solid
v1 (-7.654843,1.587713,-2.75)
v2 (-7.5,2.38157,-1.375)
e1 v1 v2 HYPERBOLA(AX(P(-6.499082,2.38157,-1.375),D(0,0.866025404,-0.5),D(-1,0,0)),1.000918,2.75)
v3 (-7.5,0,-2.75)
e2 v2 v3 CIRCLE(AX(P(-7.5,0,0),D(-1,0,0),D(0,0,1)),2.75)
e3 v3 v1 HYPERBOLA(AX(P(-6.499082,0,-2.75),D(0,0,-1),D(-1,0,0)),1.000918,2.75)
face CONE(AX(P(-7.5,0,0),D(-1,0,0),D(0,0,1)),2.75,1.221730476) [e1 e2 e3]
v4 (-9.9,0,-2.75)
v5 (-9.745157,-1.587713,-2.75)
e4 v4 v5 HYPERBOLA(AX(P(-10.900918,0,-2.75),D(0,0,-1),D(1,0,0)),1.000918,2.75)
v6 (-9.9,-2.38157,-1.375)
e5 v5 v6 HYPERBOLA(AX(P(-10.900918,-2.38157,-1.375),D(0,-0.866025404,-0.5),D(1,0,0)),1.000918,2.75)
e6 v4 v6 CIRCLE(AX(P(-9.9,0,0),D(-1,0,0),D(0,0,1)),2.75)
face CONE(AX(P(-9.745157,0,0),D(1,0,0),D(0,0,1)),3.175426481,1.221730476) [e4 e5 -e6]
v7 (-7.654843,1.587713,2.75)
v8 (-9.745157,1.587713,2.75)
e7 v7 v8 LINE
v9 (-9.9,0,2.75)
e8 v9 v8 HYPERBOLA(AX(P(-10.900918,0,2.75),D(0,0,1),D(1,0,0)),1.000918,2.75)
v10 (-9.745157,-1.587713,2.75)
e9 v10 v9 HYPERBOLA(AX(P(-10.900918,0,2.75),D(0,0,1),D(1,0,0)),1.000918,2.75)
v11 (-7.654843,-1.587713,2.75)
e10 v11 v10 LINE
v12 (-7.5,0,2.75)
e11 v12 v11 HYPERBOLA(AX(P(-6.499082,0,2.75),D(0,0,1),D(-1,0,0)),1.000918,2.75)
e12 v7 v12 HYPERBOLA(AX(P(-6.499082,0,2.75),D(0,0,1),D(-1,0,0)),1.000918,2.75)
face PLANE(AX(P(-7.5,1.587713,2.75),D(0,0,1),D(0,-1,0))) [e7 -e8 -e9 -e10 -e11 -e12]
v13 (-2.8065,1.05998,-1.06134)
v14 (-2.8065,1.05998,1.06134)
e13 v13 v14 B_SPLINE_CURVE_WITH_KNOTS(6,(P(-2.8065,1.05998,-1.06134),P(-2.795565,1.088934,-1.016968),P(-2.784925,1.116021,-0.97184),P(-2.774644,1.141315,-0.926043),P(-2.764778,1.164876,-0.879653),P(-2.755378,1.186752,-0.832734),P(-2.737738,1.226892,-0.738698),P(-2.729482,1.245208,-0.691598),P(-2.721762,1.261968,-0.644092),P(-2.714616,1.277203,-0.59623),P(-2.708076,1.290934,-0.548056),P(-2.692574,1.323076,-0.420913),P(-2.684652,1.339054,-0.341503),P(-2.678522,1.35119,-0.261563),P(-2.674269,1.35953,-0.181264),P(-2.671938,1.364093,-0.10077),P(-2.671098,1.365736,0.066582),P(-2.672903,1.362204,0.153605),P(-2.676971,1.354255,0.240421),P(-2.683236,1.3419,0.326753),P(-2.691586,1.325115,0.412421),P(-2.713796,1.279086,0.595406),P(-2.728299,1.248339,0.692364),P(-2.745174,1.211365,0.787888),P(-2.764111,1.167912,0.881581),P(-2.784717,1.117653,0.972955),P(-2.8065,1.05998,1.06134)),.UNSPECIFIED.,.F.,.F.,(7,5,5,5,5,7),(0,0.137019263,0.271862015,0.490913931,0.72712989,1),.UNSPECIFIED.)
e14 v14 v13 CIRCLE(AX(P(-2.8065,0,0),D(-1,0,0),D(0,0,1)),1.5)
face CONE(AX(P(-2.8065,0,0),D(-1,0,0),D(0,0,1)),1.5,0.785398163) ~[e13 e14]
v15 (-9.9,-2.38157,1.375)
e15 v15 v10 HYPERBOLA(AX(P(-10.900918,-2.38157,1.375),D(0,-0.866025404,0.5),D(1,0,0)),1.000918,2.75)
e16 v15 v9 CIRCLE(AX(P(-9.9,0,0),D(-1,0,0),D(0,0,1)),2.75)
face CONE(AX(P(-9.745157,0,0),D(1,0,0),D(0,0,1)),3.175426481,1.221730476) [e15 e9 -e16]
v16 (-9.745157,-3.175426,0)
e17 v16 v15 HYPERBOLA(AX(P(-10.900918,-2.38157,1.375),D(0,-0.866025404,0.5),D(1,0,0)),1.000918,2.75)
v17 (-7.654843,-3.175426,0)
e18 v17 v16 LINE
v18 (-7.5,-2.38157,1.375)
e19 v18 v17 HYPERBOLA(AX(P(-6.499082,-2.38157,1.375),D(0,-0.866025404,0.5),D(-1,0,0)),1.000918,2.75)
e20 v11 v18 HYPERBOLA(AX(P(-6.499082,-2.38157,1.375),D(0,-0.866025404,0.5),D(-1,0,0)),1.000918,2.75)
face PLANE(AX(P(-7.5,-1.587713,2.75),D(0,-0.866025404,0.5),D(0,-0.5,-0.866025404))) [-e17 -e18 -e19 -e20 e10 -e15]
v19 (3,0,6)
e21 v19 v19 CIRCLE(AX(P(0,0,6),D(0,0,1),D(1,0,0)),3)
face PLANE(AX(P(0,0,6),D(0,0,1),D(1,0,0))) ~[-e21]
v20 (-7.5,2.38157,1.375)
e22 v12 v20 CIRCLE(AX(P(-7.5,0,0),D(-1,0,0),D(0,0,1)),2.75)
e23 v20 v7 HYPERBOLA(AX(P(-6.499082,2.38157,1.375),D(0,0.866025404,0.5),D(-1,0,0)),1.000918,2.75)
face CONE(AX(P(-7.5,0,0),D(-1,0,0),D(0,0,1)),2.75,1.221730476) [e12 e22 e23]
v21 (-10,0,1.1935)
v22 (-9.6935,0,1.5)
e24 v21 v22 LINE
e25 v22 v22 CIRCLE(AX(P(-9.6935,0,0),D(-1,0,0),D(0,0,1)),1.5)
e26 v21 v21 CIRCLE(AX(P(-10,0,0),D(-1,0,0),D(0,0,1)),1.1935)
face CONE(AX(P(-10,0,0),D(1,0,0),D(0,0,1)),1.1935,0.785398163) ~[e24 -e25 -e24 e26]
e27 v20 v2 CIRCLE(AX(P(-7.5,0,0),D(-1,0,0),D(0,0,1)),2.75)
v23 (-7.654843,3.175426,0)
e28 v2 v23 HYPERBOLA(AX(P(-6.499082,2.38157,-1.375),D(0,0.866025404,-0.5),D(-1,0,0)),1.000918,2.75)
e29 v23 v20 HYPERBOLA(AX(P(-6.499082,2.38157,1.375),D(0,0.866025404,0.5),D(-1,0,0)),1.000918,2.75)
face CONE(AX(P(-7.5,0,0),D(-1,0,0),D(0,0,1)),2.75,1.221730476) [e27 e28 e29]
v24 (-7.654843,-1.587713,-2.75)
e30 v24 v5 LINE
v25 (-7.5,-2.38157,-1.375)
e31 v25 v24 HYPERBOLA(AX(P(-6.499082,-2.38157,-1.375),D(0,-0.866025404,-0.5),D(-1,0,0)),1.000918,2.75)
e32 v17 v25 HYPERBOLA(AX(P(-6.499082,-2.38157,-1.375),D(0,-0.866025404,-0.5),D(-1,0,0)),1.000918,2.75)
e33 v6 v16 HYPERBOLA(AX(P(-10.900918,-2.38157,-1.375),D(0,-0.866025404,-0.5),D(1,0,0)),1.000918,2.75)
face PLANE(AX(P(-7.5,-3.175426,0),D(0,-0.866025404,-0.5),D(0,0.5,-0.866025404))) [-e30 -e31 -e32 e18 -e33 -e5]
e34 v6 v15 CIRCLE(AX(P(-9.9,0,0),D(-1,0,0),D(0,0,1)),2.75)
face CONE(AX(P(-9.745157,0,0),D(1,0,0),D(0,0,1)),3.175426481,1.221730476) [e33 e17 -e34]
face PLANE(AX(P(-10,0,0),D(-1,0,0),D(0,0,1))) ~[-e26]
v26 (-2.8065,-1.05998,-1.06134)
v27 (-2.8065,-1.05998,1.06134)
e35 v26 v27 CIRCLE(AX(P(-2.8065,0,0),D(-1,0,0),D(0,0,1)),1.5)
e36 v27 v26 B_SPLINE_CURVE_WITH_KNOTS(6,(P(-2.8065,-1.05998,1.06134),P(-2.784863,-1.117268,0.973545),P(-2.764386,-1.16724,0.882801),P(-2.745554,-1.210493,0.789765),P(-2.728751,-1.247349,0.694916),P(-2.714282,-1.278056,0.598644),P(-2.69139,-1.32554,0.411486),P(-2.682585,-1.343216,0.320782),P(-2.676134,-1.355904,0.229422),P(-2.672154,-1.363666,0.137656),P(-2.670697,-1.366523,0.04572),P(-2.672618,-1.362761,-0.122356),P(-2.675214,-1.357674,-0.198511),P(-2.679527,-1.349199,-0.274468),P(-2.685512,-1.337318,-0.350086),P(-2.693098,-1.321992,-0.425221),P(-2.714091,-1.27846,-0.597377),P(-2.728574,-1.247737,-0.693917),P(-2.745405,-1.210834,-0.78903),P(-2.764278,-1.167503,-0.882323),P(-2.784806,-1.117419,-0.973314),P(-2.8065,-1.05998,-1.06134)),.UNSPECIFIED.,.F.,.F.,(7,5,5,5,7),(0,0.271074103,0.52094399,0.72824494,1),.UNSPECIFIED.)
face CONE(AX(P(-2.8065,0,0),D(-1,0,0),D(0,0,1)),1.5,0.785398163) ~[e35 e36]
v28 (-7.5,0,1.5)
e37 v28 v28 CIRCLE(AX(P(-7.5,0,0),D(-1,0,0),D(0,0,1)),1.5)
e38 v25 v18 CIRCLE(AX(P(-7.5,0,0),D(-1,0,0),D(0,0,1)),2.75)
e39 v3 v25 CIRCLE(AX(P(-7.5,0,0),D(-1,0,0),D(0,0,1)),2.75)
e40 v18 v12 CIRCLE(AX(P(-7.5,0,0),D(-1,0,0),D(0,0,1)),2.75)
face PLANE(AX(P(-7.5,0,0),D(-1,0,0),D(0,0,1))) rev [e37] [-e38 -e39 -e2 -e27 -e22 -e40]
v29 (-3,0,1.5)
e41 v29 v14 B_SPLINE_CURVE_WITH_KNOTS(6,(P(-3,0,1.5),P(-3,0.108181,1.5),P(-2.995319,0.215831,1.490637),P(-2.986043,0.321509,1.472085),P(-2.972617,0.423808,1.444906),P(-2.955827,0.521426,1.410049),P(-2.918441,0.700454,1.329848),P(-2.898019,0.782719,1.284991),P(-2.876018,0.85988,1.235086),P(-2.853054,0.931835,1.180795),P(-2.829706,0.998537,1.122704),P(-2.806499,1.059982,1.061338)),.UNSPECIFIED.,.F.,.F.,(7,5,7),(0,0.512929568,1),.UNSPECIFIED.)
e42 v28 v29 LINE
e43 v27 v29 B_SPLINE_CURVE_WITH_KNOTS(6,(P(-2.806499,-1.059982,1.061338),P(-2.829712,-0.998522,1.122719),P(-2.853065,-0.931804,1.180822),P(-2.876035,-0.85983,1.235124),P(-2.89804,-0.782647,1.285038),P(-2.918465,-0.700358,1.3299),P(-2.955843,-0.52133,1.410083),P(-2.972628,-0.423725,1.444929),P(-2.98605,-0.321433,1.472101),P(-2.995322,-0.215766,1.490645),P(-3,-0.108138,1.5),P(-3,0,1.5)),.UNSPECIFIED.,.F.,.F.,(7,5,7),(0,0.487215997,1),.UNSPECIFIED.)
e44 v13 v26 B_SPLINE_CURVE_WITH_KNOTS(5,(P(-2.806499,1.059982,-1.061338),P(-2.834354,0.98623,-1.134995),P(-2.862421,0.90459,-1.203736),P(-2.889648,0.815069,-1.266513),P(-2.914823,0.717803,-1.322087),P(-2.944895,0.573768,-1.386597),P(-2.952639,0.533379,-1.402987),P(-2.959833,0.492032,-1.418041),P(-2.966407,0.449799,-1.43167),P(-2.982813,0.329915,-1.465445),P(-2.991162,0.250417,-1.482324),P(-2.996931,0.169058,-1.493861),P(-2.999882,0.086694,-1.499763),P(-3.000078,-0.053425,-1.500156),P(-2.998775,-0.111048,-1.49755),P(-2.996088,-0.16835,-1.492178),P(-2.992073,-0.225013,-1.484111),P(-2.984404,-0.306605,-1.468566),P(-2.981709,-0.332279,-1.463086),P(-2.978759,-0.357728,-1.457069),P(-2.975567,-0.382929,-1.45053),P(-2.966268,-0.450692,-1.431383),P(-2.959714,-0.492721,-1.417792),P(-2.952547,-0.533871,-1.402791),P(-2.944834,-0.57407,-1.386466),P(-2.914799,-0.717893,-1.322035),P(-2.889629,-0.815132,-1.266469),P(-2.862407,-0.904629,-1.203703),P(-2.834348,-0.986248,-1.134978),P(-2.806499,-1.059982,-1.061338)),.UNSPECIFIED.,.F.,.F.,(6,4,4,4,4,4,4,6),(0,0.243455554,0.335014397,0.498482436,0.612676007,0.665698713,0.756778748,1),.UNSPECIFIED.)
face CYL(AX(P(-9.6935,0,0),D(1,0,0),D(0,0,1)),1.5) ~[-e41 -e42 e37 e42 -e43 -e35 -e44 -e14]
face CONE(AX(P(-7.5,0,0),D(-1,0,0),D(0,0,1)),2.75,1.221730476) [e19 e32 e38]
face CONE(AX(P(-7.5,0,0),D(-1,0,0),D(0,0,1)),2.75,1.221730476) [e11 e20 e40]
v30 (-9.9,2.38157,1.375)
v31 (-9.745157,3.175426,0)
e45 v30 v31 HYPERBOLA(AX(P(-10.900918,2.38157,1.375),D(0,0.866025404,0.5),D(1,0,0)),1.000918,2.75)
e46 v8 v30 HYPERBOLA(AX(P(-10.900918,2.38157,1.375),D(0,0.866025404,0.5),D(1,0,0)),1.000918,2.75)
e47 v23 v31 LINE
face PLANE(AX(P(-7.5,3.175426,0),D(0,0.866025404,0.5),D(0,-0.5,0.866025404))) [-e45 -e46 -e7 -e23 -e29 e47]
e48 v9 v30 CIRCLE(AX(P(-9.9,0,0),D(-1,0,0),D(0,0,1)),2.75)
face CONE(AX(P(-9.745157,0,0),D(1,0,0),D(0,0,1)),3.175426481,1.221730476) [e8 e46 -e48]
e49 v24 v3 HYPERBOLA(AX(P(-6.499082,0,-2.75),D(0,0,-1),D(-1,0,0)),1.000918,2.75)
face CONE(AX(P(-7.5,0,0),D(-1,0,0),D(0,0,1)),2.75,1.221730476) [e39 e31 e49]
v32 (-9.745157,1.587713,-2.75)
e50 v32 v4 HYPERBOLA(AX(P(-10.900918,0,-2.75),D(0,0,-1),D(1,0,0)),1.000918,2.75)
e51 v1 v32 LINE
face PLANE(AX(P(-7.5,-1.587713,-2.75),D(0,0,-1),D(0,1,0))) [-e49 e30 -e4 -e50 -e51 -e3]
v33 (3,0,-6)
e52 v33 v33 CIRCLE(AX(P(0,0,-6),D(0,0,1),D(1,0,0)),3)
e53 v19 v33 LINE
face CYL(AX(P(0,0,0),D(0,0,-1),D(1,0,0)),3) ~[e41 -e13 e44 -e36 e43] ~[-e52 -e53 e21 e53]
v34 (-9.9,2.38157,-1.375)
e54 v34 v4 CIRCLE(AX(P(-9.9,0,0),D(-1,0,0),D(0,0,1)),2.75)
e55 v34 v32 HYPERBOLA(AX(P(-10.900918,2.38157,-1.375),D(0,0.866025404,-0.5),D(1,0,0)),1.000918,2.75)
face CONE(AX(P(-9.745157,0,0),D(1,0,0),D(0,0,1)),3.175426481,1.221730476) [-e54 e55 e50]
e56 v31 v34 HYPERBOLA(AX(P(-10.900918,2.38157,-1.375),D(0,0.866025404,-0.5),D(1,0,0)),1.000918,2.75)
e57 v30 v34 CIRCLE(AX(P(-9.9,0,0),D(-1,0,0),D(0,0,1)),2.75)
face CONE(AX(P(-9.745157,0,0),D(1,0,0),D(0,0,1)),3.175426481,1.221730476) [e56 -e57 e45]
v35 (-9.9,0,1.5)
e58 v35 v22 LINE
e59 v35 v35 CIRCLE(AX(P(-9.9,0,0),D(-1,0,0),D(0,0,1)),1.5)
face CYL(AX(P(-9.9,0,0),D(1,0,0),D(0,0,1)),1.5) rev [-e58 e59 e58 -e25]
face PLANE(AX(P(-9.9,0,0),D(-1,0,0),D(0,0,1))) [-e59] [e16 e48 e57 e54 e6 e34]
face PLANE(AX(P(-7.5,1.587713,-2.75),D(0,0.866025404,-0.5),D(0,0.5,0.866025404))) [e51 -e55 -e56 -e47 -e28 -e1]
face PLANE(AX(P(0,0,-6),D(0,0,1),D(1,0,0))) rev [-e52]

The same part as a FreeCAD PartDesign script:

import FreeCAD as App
import Part
import Sketcher

V = App.Vector
Q = App.Units.Quantity


def add_polygon(sketch, points):
    """Adds a closed chain of lines whose ends are joined by coincident constraints."""
    first, n = sketch.GeometryCount, len(points)
    for a, b in zip(points, points[1:] + points[:1]):
        sketch.addGeometry(Part.LineSegment(App.Vector(*a, 0), App.Vector(*b, 0)), False)
    for i in range(n):
        sketch.addConstraint(Sketcher.Constraint("Coincident", first + i, 2, first + (i + 1) % n, 1))

doc = App.newDocument("Part")
params = doc.addObject("Spreadsheet::Sheet", "Params")
for row, (alias, value) in enumerate([
    ("sketch1_width", "3 mm"),
    ("sketch1_height", "12 mm"),
    ("revolution_angle", "360 deg"),
    ("sketch2_width", "7.5 mm"),
    ("revolution2_angle", "360 deg"),
    ("sketch3_width", "2.4 mm"),
    ("sketch3_height", "1.25 mm"),
    ("revolution3_angle", "360 deg"),
    ("sketch4_width", "11 mm"),
    ("pocket1_length", "2.4 mm"),
], start=1):
    params.set(f"A{row}", alias)
    params.set(f"B{row}", "=" + value)
    params.setAlias(f"B{row}", alias)

body = doc.addObject("PartDesign::Body", "Body")

# Sketch on YZ plane
sketch1 = doc.addObject("Sketcher::SketchObject", "Sketch")
body.addObject(sketch1)
sketch1.AttachmentSupport = (doc.YZ_Plane, [""])
sketch1.MapMode = "FlatFace"
add_polygon(sketch1, [(3, 6), (0, 6), (0, -6), (3, -6)])  # lines 0-3
sketch1.addConstraint(Sketcher.Constraint("Horizontal", 0))
sketch1.addConstraint(Sketcher.Constraint("Vertical", 1))
sketch1.addConstraint(Sketcher.Constraint("Horizontal", 2))
sketch1.addConstraint(Sketcher.Constraint("Vertical", 3))
sketch1.addConstraint(Sketcher.Constraint("Symmetric", 0, 2, 1, 2, -1, 1))
sketch1.addConstraint(Sketcher.Constraint("DistanceX", 0, 2, 0, 1, Q("3 mm")))
sketch1.addConstraint(Sketcher.Constraint("DistanceY", 1, 2, 1, 1, Q("12 mm")))
sketch1.setExpression("Constraints[9]", "Params.sketch1_width")
sketch1.setExpression("Constraints[10]", "Params.sketch1_height")
revolution = doc.addObject("PartDesign::Revolution", "Revolution")
body.addObject(revolution)
revolution.Profile = sketch1
revolution.ReferenceAxis = (sketch1, ["V_Axis"])
revolution.setExpression("Angle", "Params.revolution_angle")

# Sketch on XY plane
sketch2 = doc.addObject("Sketcher::SketchObject", "Sketch001")
body.addObject(sketch2)
sketch2.AttachmentSupport = (doc.XY_Plane, [""])
sketch2.MapMode = "FlatFace"
add_polygon(sketch2, [(-10, 1.19), (-10, 0), (-2.5, 0), (-2.5, 1.19), (-2.81, 1.5), (-9.69, 1.5)])  # lines 0-5
sketch2.addConstraint(Sketcher.Constraint("Vertical", 0))
sketch2.addConstraint(Sketcher.Constraint("Horizontal", 1))
sketch2.addConstraint(Sketcher.Constraint("Vertical", 2))
sketch2.addConstraint(Sketcher.Constraint("Horizontal", 4))
sketch2.addConstraint(Sketcher.Constraint("PointOnObject", 0, 2, -1))
sketch2.addConstraint(Sketcher.Constraint("Perpendicular", 3, 5))
sketch2.addConstraint(Sketcher.Constraint("Horizontal", 2, 2, 5, 2))
sketch2.addConstraint(Sketcher.Constraint("Equal", 3, 5))
sketch2.addConstraint(Sketcher.Constraint("DistanceX", 1, 1, 1, 2, Q("7.5 mm")))
sketch2.addConstraint(Sketcher.Constraint("DistanceX", 0, 2, -1, 1, Q("10 mm")))
sketch2.addConstraint(Sketcher.Constraint("DistanceY", -1, 1, 3, 2, Q("1.5 mm")))
sketch2.addConstraint(Sketcher.Constraint("DistanceX", 4, 2, 4, 1, Q("6.887 mm")))
sketch2.setExpression("Constraints[14]", "Params.sketch2_width")
revolution2 = doc.addObject("PartDesign::Revolution", "Revolution001")
body.addObject(revolution2)
revolution2.Profile = sketch2
revolution2.ReferenceAxis = (sketch2, ["H_Axis"])
revolution2.setExpression("Angle", "Params.revolution2_angle")

# Sketch on XY plane
sketch3 = doc.addObject("Sketcher::SketchObject", "Sketch002")
body.addObject(sketch3)
sketch3.AttachmentSupport = (doc.XY_Plane, [""])
sketch3.MapMode = "FlatFace"
add_polygon(sketch3, [(-9.9, 2.75), (-9.9, 1.5), (-7.5, 1.5), (-7.5, 2.75), (-7.65, 3.18), (-9.75, 3.18)])  # lines 0-5
sketch3.addConstraint(Sketcher.Constraint("Vertical", 0))
sketch3.addConstraint(Sketcher.Constraint("Horizontal", 1))
sketch3.addConstraint(Sketcher.Constraint("Vertical", 2))
sketch3.addConstraint(Sketcher.Constraint("Horizontal", 4))
sketch3.addConstraint(Sketcher.Constraint("Horizontal", 2, 2, 5, 2))
sketch3.addConstraint(Sketcher.Constraint("Equal", 3, 5))
sketch3.addConstraint(Sketcher.Constraint("Angle", 3, Q("110 deg")))
sketch3.addConstraint(Sketcher.Constraint("DistanceX", 1, 1, 1, 2, Q("2.4 mm")))
sketch3.addConstraint(Sketcher.Constraint("DistanceY", 0, 2, 0, 1, Q("1.25 mm")))
sketch3.addConstraint(Sketcher.Constraint("DistanceX", 0, 2, -1, 1, Q("9.9 mm")))
sketch3.addConstraint(Sketcher.Constraint("DistanceY", -1, 1, 0, 2, Q("1.5 mm")))
sketch3.addConstraint(Sketcher.Constraint("Distance", 3, Q("0.452729 mm")))
sketch3.setExpression("Constraints[13]", "Params.sketch3_width")
sketch3.setExpression("Constraints[14]", "Params.sketch3_height")
revolution3 = doc.addObject("PartDesign::Revolution", "Revolution002")
body.addObject(revolution3)
revolution3.Profile = sketch3
revolution3.ReferenceAxis = (sketch3, ["H_Axis"])
revolution3.setExpression("Angle", "Params.revolution3_angle")

# Sketch on YZ plane
sketch4 = doc.addObject("Sketcher::SketchObject", "Sketch003")
body.addObject(sketch4)
sketch4.AttachmentSupport = (doc.YZ_Plane, [""])
sketch4.MapMode = "FlatFace"
sketch4.AttachmentOffset = App.Placement(V(0, 0, -7.5), App.Rotation())
add_polygon(sketch4, [(5.5, 5.5), (-5.5, 5.5), (-5.5, -5.5), (5.5, -5.5)])  # lines 0-3
add_polygon(sketch4, [(-3.2, 0), (-1.6, 2.8), (1.6, 2.8), (3.2, 0), (1.6, -2.8), (-1.6, -2.8)])  # lines 4-9
sketch4.addConstraint(Sketcher.Constraint("Horizontal", 0))
sketch4.addConstraint(Sketcher.Constraint("Vertical", 1))
sketch4.addConstraint(Sketcher.Constraint("Horizontal", 2))
sketch4.addConstraint(Sketcher.Constraint("Vertical", 3))
sketch4.addConstraint(Sketcher.Constraint("Horizontal", 5))
sketch4.addConstraint(Sketcher.Constraint("Horizontal", 8))
sketch4.addConstraint(Sketcher.Constraint("Symmetric", 0, 2, 2, 2, -1, 1))
sketch4.addConstraint(Sketcher.Constraint("Symmetric", 4, 2, 7, 2, -1, 1))
sketch4.addConstraint(Sketcher.Constraint("Symmetric", 6, 2, 9, 2, -1, 1))
sketch4.addConstraint(Sketcher.Constraint("PointOnObject", 6, 2, -1))
sketch4.addConstraint(Sketcher.Constraint("Parallel", 6, 9))
sketch4.addConstraint(Sketcher.Constraint("Vertical", 5, 2, 7, 2))
sketch4.addConstraint(Sketcher.Constraint("Equal", 2, 1))
sketch4.addConstraint(Sketcher.Constraint("DistanceX", 0, 2, 0, 1, Q("11 mm")))
sketch4.addConstraint(Sketcher.Constraint("Angle", 4, Q("60 deg")))
sketch4.addConstraint(Sketcher.Constraint("DistanceY", 7, 2, 5, 2, Q("5.5 mm")))
sketch4.addConstraint(Sketcher.Constraint("DistanceX", 5, 1, 5, 2, Q("3.175426 mm")))
sketch4.setExpression("Constraints[23]", "Params.sketch4_width")
pocket1 = doc.addObject("PartDesign::Pocket", "Pocket")
body.addObject(pocket1)
pocket1.Profile = sketch4
pocket1.setExpression("Length", "Params.pocket1_length")

doc.recompute()
